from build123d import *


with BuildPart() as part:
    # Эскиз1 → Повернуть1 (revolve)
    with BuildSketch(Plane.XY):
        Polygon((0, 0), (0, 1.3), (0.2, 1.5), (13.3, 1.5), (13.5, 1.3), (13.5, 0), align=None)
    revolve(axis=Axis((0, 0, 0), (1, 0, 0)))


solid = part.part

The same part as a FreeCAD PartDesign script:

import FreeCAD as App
import Part
import Sketcher
Q = App.Units.Quantity

doc = App.newDocument("Part")
params = doc.addObject("Spreadsheet::Sheet", "Params")
for row, (alias, value) in enumerate([
    ("sketch1_width", "13.5 mm"),
    ("sketch1_width2", "13.1 mm"),
    ("sketch1_height", "1.3 mm"),
    ("revolution_angle", "360 deg"),
], start=1):
    params.set(f"A{row}", alias)
    params.set(f"B{row}", "=" + value)
    params.setAlias(f"B{row}", alias)

body = doc.addObject("PartDesign::Body", "Body")

sketch1 = doc.addObject("Sketcher::SketchObject", "Sketch")
body.addObject(sketch1)
sketch1.AttachmentSupport = (doc.XY_Plane, [""])
sketch1.MapMode = "FlatFace"
sketch1.addGeometry(Part.LineSegment(App.Vector(0, 1.3, 0), App.Vector(0, 0, 0)), False)
sketch1.addGeometry(Part.LineSegment(App.Vector(0, 0, 0), App.Vector(13.5, 0, 0)), False)
sketch1.addGeometry(Part.LineSegment(App.Vector(13.5, 0, 0), App.Vector(13.5, 1.3, 0)), False)
sketch1.addGeometry(Part.LineSegment(App.Vector(13.5, 1.3, 0), App.Vector(13.3, 1.5, 0)), False)
sketch1.addGeometry(Part.LineSegment(App.Vector(13.3, 1.5, 0), App.Vector(0.2, 1.5, 0)), False)
sketch1.addGeometry(Part.LineSegment(App.Vector(0.2, 1.5, 0), App.Vector(0, 1.3, 0)), False)
sketch1.addConstraint(Sketcher.Constraint("Coincident", 0, 2, 1, 1))
sketch1.addConstraint(Sketcher.Constraint("Coincident", 1, 2, 2, 1))
sketch1.addConstraint(Sketcher.Constraint("Coincident", 2, 2, 3, 1))
sketch1.addConstraint(Sketcher.Constraint("Coincident", 3, 2, 4, 1))
sketch1.addConstraint(Sketcher.Constraint("Coincident", 4, 2, 5, 1))
sketch1.addConstraint(Sketcher.Constraint("Coincident", 5, 2, 0, 1))
sketch1.addConstraint(Sketcher.Constraint("Vertical", 0))
sketch1.addConstraint(Sketcher.Constraint("Horizontal", 1))
sketch1.addConstraint(Sketcher.Constraint("Vertical", 2))
sketch1.addConstraint(Sketcher.Constraint("Horizontal", 4))
sketch1.addConstraint(Sketcher.Constraint("Coincident", 0, 2, -1, 1))
sketch1.addConstraint(Sketcher.Constraint("Perpendicular", 3, 5))
sketch1.addConstraint(Sketcher.Constraint("Horizontal", 2, 2, 5, 2))
sketch1.addConstraint(Sketcher.Constraint("Equal", 3, 5))
sketch1.addConstraint(Sketcher.Constraint("DistanceX", 1, 1, 1, 2, Q("13.5 mm")))
sketch1.addConstraint(Sketcher.Constraint("DistanceX", 4, 2, 4, 1, Q("13.1 mm")))
sketch1.addConstraint(Sketcher.Constraint("DistanceY", 0, 2, 0, 1, Q("1.3 mm")))
sketch1.setExpression("Constraints[14]", "Params.sketch1_width")
sketch1.setExpression("Constraints[15]", "Params.sketch1_width2")
sketch1.setExpression("Constraints[16]", "Params.sketch1_height")
revolution = doc.addObject("PartDesign::Revolution", "Revolution")
body.addObject(revolution)
revolution.Profile = sketch1
revolution.ReferenceAxis = (sketch1, ["H_Axis"])
revolution.setExpression("Angle", "Params.revolution_angle")

doc.recompute()
